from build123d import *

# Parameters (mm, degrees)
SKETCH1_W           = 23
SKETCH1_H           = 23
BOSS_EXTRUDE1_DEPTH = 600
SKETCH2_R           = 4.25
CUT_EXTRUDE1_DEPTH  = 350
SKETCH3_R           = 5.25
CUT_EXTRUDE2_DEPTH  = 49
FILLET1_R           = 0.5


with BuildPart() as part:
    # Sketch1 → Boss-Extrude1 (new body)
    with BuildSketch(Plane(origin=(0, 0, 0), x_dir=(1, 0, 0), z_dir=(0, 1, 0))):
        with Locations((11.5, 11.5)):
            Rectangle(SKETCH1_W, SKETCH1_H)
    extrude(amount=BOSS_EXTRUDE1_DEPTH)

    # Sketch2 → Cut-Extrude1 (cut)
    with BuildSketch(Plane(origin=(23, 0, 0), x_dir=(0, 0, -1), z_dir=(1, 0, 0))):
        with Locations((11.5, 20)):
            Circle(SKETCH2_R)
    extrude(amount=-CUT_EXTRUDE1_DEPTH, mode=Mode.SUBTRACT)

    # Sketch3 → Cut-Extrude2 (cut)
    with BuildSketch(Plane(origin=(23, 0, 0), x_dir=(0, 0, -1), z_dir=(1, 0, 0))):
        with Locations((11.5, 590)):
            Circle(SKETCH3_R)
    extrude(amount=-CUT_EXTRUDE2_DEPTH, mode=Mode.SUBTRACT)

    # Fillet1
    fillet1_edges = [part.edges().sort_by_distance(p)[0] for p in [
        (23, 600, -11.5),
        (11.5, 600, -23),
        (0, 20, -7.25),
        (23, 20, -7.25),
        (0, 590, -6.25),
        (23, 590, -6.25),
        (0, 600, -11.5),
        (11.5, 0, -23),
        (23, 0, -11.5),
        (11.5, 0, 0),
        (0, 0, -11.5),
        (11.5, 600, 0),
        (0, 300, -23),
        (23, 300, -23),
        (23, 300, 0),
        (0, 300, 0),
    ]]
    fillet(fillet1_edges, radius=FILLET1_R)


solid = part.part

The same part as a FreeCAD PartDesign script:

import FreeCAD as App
import Part
import Sketcher

V = App.Vector
Q = App.Units.Quantity


def add_polygon(sketch, points):
    """Adds a closed chain of lines whose ends are joined by coincident constraints."""
    first, n = sketch.GeometryCount, len(points)
    for a, b in zip(points, points[1:] + points[:1]):
        sketch.addGeometry(Part.LineSegment(App.Vector(*a, 0), App.Vector(*b, 0)), False)
    for i in range(n):
        sketch.addConstraint(Sketcher.Constraint("Coincident", first + i, 2, first + (i + 1) % n, 1))

doc = App.newDocument("Part")
body = doc.addObject("PartDesign::Body", "Body")

# Sketch on XZ plane
sketch1 = doc.addObject("Sketcher::SketchObject", "Sketch")
body.addObject(sketch1)
sketch1.AttachmentSupport = (doc.XZ_Plane, [""])
sketch1.MapMode = "FlatFace"
add_polygon(sketch1, [(0, -23), (0, 0), (23, 0), (23, -23)])  # lines 0-3
sketch1.addConstraint(Sketcher.Constraint("Vertical", 0))
sketch1.addConstraint(Sketcher.Constraint("Horizontal", 1))
sketch1.addConstraint(Sketcher.Constraint("Vertical", 2))
sketch1.addConstraint(Sketcher.Constraint("Horizontal", 3))
sketch1.addConstraint(Sketcher.Constraint("Coincident", 0, 2, -1, 1))
sketch1.addConstraint(Sketcher.Constraint("Equal", 3, 0))
sketch1.addConstraint(Sketcher.Constraint("DistanceX", 1, 1, 1, 2, Q("23 mm")))
pad1 = doc.addObject("PartDesign::Pad", "Pad")
body.addObject(pad1)
pad1.Profile = sketch1
pad1.Length = 600
pad1.Reversed = True

# Sketch on YZ plane
sketch2 = doc.addObject("Sketcher::SketchObject", "Sketch001")
body.addObject(sketch2)
sketch2.AttachmentSupport = (doc.YZ_Plane, [""])
sketch2.MapMode = "FlatFace"
sketch2.AttachmentOffset = App.Placement(V(0, 0, 23), App.Rotation())
sketch2.addGeometry(Part.Circle(V(20, -11.5, 0), V(0, 0, 1), 4.2), False)
sketch2.addConstraint(Sketcher.Constraint("Diameter", 0, Q("8.5 mm")))
sketch2.addConstraint(Sketcher.Constraint("DistanceX", -1, 1, 0, 3, Q("20 mm")))
sketch2.addConstraint(Sketcher.Constraint("DistanceY", 0, 3, -1, 1, Q("11.5 mm")))
pocket1 = doc.addObject("PartDesign::Pocket", "Pocket")
body.addObject(pocket1)
pocket1.Profile = sketch2
pocket1.Length = 350

# Sketch on YZ plane
sketch3 = doc.addObject("Sketcher::SketchObject", "Sketch002")
body.addObject(sketch3)
sketch3.AttachmentSupport = (doc.YZ_Plane, [""])
sketch3.MapMode = "FlatFace"
sketch3.AttachmentOffset = App.Placement(V(0, 0, 23), App.Rotation())
sketch3.addGeometry(Part.Circle(V(590, -12, 0), V(0, 0, 1), 5), False)
sketch3.addConstraint(Sketcher.Constraint("Diameter", 0, Q("10.5 mm")))
sketch3.addConstraint(Sketcher.Constraint("DistanceX", -1, 1, 0, 3, Q("590 mm")))
sketch3.addConstraint(Sketcher.Constraint("DistanceY", 0, 3, -1, 1, Q("11.5 mm")))
pocket2 = doc.addObject("PartDesign::Pocket", "Pocket001")
body.addObject(pocket2)
pocket2.Profile = sketch3
pocket2.Length = 49
doc.recompute()

fillet = doc.addObject("PartDesign::Fillet", "Fillet")
body.addObject(fillet)
fillet.Base = (pocket2, ["Edge1"])
fillet.UseAllEdges = True
fillet.Radius = 0.5

doc.recompute()
